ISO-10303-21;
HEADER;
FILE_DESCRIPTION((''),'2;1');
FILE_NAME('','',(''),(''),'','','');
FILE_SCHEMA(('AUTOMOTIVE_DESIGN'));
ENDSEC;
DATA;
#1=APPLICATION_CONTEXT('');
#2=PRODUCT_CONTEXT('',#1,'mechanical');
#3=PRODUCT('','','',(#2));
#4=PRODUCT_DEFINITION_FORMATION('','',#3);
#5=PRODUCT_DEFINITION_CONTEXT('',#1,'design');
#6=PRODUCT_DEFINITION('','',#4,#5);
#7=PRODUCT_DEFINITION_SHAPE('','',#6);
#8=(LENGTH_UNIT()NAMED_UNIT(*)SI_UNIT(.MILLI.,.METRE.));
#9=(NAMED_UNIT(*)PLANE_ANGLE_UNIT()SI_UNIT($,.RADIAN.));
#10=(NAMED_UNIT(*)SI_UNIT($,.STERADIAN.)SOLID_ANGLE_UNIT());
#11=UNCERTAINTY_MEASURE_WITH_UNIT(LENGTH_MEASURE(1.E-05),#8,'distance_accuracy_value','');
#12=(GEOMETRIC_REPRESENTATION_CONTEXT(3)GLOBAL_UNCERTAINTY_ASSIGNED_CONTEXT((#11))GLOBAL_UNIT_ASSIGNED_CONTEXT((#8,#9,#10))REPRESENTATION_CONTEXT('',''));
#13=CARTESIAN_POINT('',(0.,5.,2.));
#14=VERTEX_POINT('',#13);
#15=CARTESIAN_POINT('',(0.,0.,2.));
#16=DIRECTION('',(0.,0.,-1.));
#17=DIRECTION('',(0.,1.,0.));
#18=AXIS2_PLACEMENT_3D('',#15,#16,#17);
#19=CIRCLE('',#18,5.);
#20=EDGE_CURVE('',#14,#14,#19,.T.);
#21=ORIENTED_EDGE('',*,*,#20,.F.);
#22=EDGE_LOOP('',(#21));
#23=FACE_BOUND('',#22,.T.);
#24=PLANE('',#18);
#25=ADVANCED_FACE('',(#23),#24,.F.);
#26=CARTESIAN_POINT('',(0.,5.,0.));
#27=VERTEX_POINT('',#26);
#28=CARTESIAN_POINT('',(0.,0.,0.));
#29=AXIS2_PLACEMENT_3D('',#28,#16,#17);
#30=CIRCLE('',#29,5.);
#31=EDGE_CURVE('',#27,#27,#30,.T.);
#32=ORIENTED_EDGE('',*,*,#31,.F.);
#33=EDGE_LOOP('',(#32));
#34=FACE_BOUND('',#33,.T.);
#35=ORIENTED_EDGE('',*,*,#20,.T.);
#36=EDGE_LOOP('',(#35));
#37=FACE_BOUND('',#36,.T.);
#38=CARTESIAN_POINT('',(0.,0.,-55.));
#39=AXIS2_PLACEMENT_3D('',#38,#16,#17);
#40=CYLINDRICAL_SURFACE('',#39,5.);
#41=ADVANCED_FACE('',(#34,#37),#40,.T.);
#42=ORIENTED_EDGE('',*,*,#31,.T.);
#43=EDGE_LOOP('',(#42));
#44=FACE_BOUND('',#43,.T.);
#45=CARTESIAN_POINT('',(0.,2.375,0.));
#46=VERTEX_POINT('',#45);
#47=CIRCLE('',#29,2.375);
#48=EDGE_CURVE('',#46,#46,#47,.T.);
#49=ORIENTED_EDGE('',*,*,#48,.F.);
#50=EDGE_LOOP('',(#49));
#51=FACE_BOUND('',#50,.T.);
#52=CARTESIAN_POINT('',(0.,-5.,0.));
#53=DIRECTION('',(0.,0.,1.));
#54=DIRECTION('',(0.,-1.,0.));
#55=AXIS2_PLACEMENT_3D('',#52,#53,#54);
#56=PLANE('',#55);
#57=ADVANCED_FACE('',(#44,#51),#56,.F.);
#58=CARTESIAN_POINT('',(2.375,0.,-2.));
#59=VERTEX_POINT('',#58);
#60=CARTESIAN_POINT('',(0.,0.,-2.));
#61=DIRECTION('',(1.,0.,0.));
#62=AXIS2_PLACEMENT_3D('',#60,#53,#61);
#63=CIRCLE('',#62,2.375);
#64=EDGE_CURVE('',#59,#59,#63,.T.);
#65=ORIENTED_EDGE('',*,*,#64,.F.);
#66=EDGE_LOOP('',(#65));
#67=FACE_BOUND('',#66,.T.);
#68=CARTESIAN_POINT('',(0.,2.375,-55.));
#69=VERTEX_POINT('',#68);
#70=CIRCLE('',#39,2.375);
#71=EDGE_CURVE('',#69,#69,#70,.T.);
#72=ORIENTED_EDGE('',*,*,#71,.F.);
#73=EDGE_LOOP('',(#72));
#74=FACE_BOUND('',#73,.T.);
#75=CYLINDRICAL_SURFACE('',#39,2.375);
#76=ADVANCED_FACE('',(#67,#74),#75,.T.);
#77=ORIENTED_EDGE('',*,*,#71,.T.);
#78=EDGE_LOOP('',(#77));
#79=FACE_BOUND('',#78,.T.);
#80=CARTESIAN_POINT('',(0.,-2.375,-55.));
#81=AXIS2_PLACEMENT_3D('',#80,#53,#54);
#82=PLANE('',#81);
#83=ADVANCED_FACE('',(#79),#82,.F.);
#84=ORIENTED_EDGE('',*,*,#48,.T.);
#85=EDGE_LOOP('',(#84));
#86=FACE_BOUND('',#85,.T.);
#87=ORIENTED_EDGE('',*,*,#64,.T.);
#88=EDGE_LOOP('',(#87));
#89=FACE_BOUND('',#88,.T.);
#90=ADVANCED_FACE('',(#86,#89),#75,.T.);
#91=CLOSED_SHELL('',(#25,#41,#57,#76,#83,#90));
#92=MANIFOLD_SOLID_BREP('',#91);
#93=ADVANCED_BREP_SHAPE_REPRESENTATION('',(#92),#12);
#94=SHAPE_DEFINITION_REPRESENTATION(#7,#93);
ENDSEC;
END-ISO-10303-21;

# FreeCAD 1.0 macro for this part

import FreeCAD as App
import Part
import Sketcher
from FreeCAD import Vector
Q = App.Units.Quantity


def add_polygon(sketch, points):
    """Adds a closed chain of lines whose ends are joined by coincident constraints."""
    first, n = sketch.GeometryCount, len(points)
    for a, b in zip(points, points[1:] + points[:1]):
        sketch.addGeometry(Part.LineSegment(App.Vector(*a, 0), App.Vector(*b, 0)), False)
    for i in range(n):
        sketch.addConstraint(Sketcher.Constraint("Coincident", first + i, 2, first + (i + 1) % n, 1))

doc = App.newDocument("Part")
body = doc.addObject("PartDesign::Body", "Body")

# Sketch on YZ plane
sketch1 = doc.addObject("Sketcher::SketchObject", "Sketch")
body.addObject(sketch1)
sketch1.AttachmentSupport = (doc.YZ_Plane, [""])
sketch1.MapMode = "FlatFace"
add_polygon(sketch1, [(0, -55), (0, 2), (-5, 2), (-5, 0), (-2.4, 0), (-2.4, -55)])  # lines 0-5
sketch1.addConstraint(Sketcher.Constraint("Vertical", 0))
sketch1.addConstraint(Sketcher.Constraint("Horizontal", 1))
sketch1.addConstraint(Sketcher.Constraint("Vertical", 2))
sketch1.addConstraint(Sketcher.Constraint("Horizontal", 3))
sketch1.addConstraint(Sketcher.Constraint("Vertical", 4))
sketch1.addConstraint(Sketcher.Constraint("Horizontal", 5))
sketch1.addConstraint(Sketcher.Constraint("PointOnObject", 0, 2, -2))
sketch1.addConstraint(Sketcher.Constraint("PointOnObject", 2, 2, -1))
sketch1.addConstraint(Sketcher.Constraint("DistanceX", 1, 2, 1, 1, Q("5 mm")))
sketch1.addConstraint(Sketcher.Constraint("DistanceY", 0, 1, 0, 2, Q("57 mm")))
sketch1.addConstraint(Sketcher.Constraint("DistanceY", 2, 2, 2, 1, Q("2 mm")))
sketch1.addConstraint(Sketcher.Constraint("DistanceX", 3, 1, 3, 2, Q("2.625 mm")))
revolution = doc.addObject("PartDesign::Revolution", "Revolution")
body.addObject(revolution)
revolution.Profile = sketch1
revolution.ReferenceAxis = (sketch1, ["V_Axis"])
revolution.Angle = 360

doc.recompute()
